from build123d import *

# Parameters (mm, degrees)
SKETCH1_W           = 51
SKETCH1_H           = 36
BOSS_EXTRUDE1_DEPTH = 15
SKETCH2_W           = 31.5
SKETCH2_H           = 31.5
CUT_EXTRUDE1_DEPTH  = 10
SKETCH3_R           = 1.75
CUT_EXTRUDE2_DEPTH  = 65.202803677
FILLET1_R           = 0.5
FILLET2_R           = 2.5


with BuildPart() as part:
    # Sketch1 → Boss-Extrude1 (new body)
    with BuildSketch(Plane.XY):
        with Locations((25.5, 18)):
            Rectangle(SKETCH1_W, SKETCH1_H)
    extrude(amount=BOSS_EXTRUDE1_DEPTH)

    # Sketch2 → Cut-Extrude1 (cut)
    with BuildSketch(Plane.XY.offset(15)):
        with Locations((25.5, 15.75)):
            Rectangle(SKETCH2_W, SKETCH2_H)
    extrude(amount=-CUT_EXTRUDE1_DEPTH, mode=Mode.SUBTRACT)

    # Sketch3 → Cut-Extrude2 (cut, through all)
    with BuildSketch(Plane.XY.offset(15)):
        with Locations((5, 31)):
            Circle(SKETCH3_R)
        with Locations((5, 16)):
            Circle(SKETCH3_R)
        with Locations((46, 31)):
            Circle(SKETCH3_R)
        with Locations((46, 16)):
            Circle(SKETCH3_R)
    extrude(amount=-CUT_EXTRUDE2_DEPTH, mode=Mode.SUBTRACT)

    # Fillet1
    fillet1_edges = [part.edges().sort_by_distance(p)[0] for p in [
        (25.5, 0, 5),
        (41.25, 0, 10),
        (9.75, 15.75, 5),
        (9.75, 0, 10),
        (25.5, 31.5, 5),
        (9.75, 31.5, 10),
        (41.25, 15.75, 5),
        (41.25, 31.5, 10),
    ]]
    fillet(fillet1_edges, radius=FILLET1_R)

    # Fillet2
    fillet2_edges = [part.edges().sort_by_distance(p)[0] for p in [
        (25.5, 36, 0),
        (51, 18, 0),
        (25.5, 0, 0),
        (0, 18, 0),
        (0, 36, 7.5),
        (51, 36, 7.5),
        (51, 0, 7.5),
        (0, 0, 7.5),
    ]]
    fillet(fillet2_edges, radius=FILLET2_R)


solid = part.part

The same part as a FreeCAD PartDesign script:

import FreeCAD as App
import Part
import Sketcher
Q = App.Units.Quantity


def edges_at(feature, points):
    """Names of the edges that pass closest to the given points."""
    edges = feature.Shape.Edges
    near = lambda p: min(range(len(edges)), key=lambda i: edges[i].distToShape(Part.Vertex(*p))[0])
    return sorted({f"Edge{near(p) + 1}" for p in points})

doc = App.newDocument("Part")
body = doc.addObject("PartDesign::Body", "Body")

# Sketch on XY plane
sketch1 = doc.addObject("Sketcher::SketchObject", "Sketch")
body.addObject(sketch1)
sketch1.AttachmentSupport = (doc.XY_Plane, [""])
sketch1.MapMode = "FlatFace"
sketch1.addGeometry([
    Part.LineSegment(App.Vector(0, 36, 0), App.Vector(0, 0, 0)),
    Part.LineSegment(App.Vector(0, 0, 0), App.Vector(51, 0, 0)),
    Part.LineSegment(App.Vector(51, 0, 0), App.Vector(51, 36, 0)),
    Part.LineSegment(App.Vector(51, 36, 0), App.Vector(0, 36, 0)),
], False)
sketch1.addConstraint([
    Sketcher.Constraint("Coincident", 0, 2, 1, 1),
    Sketcher.Constraint("Coincident", 1, 2, 2, 1),
    Sketcher.Constraint("Coincident", 2, 2, 3, 1),
    Sketcher.Constraint("Coincident", 3, 2, 0, 1),
    Sketcher.Constraint("Vertical", 0),
    Sketcher.Constraint("Horizontal", 1),
    Sketcher.Constraint("Vertical", 2),
    Sketcher.Constraint("Horizontal", 3),
    Sketcher.Constraint("Coincident", 0, 2, -1, 1),
    Sketcher.Constraint("DistanceX", 1, 1, 1, 2, Q("51 mm")),
    Sketcher.Constraint("DistanceY", 0, 2, 0, 1, Q("36 mm")),
])
pad1 = doc.addObject("PartDesign::Pad", "Pad")
body.addObject(pad1)
pad1.Profile = sketch1
pad1.Length = 15

# Sketch on XY plane
sketch2 = doc.addObject("Sketcher::SketchObject", "Sketch001")
body.addObject(sketch2)
sketch2.AttachmentSupport = (doc.XY_Plane, [""])
sketch2.MapMode = "FlatFace"
sketch2.AttachmentOffset = App.Placement(App.Vector(0, 0, 15), App.Rotation())
sketch2.addGeometry([
    Part.LineSegment(App.Vector(10, 32, 0), App.Vector(10, 0, 0)),
    Part.LineSegment(App.Vector(10, 0, 0), App.Vector(41, 0, 0)),
    Part.LineSegment(App.Vector(41, 0, 0), App.Vector(41, 32, 0)),
    Part.LineSegment(App.Vector(41, 32, 0), App.Vector(10, 32, 0)),
], False)
sketch2.addConstraint([
    Sketcher.Constraint("Coincident", 0, 2, 1, 1),
    Sketcher.Constraint("Coincident", 1, 2, 2, 1),
    Sketcher.Constraint("Coincident", 2, 2, 3, 1),
    Sketcher.Constraint("Coincident", 3, 2, 0, 1),
    Sketcher.Constraint("Vertical", 0),
    Sketcher.Constraint("Horizontal", 1),
    Sketcher.Constraint("Vertical", 2),
    Sketcher.Constraint("Horizontal", 3),
    Sketcher.Constraint("PointOnObject", 0, 2, -1),
    Sketcher.Constraint("Equal", 3, 0),
    Sketcher.Constraint("DistanceX", 1, 1, 1, 2, Q("31.5 mm")),
    Sketcher.Constraint("DistanceX", -1, 1, 0, 2, Q("9.75 mm")),
])
pocket1 = doc.addObject("PartDesign::Pocket", "Pocket")
body.addObject(pocket1)
pocket1.Profile = sketch2
pocket1.Length = 10

# Sketch on XY plane
sketch3 = doc.addObject("Sketcher::SketchObject", "Sketch002")
body.addObject(sketch3)
sketch3.AttachmentSupport = (doc.XY_Plane, [""])
sketch3.MapMode = "FlatFace"
sketch3.AttachmentOffset = App.Placement(App.Vector(0, 0, 15), App.Rotation())
sketch3.addGeometry([
    Part.Circle(App.Vector(5, 31, 0), App.Vector(0, 0, 1), 1.8),
    Part.Circle(App.Vector(5, 16, 0), App.Vector(0, 0, 1), 1.8),
    Part.Circle(App.Vector(46, 31, 0), App.Vector(0, 0, 1), 1.8),
    Part.Circle(App.Vector(46, 16, 0), App.Vector(0, 0, 1), 1.8),
], False)
sketch3.addConstraint([
    Sketcher.Constraint("Equal", 0, 1),
    Sketcher.Constraint("Equal", 1, 2),
    Sketcher.Constraint("Equal", 2, 3),
    Sketcher.Constraint("Horizontal", 0, 3, 2, 3),
    Sketcher.Constraint("Horizontal", 1, 3, 3, 3),
    Sketcher.Constraint("Vertical", 0, 3, 1, 3),
    Sketcher.Constraint("Vertical", 2, 3, 3, 3),
    Sketcher.Constraint("Diameter", 0, Q("3.5 mm")),
    Sketcher.Constraint("DistanceX", -1, 1, 0, 3, Q("5 mm")),
    Sketcher.Constraint("DistanceY", -1, 1, 0, 3, Q("31 mm")),
    Sketcher.Constraint("DistanceY", -1, 1, 1, 3, Q("16 mm")),
    Sketcher.Constraint("DistanceX", -1, 1, 2, 3, Q("46 mm")),
])
pocket2 = doc.addObject("PartDesign::Pocket", "Pocket001")
body.addObject(pocket2)
pocket2.Profile = sketch3
pocket2.Type = "ThroughAll"
doc.recompute()

fillet = doc.addObject("PartDesign::Fillet", "Fillet")
body.addObject(fillet)
fillet.Base = (pocket2, edges_at(pocket2, [
    (25.5, 0, 5),
    (41.25, 0, 10),
    (9.75, 15.75, 5),
    (9.75, 0, 10),
    (25.5, 31.5, 5),
    (9.75, 31.5, 10),
    (41.25, 15.75, 5),
    (41.25, 31.5, 10),
]))
fillet.Radius = 0.5
doc.recompute()

fillet2 = doc.addObject("PartDesign::Fillet", "Fillet001")
body.addObject(fillet2)
fillet2.Base = (fillet, edges_at(fillet, [
    (25.5, 36, 0),
    (51, 18, 0),
    (25.5, 0, 0),
    (0, 18, 0),
    (0, 36, 7.5),
    (51, 36, 7.5),
    (51, 0, 7.5),
    (0, 0, 7.5),
]))
fillet2.Radius = 2.5

doc.recompute()
